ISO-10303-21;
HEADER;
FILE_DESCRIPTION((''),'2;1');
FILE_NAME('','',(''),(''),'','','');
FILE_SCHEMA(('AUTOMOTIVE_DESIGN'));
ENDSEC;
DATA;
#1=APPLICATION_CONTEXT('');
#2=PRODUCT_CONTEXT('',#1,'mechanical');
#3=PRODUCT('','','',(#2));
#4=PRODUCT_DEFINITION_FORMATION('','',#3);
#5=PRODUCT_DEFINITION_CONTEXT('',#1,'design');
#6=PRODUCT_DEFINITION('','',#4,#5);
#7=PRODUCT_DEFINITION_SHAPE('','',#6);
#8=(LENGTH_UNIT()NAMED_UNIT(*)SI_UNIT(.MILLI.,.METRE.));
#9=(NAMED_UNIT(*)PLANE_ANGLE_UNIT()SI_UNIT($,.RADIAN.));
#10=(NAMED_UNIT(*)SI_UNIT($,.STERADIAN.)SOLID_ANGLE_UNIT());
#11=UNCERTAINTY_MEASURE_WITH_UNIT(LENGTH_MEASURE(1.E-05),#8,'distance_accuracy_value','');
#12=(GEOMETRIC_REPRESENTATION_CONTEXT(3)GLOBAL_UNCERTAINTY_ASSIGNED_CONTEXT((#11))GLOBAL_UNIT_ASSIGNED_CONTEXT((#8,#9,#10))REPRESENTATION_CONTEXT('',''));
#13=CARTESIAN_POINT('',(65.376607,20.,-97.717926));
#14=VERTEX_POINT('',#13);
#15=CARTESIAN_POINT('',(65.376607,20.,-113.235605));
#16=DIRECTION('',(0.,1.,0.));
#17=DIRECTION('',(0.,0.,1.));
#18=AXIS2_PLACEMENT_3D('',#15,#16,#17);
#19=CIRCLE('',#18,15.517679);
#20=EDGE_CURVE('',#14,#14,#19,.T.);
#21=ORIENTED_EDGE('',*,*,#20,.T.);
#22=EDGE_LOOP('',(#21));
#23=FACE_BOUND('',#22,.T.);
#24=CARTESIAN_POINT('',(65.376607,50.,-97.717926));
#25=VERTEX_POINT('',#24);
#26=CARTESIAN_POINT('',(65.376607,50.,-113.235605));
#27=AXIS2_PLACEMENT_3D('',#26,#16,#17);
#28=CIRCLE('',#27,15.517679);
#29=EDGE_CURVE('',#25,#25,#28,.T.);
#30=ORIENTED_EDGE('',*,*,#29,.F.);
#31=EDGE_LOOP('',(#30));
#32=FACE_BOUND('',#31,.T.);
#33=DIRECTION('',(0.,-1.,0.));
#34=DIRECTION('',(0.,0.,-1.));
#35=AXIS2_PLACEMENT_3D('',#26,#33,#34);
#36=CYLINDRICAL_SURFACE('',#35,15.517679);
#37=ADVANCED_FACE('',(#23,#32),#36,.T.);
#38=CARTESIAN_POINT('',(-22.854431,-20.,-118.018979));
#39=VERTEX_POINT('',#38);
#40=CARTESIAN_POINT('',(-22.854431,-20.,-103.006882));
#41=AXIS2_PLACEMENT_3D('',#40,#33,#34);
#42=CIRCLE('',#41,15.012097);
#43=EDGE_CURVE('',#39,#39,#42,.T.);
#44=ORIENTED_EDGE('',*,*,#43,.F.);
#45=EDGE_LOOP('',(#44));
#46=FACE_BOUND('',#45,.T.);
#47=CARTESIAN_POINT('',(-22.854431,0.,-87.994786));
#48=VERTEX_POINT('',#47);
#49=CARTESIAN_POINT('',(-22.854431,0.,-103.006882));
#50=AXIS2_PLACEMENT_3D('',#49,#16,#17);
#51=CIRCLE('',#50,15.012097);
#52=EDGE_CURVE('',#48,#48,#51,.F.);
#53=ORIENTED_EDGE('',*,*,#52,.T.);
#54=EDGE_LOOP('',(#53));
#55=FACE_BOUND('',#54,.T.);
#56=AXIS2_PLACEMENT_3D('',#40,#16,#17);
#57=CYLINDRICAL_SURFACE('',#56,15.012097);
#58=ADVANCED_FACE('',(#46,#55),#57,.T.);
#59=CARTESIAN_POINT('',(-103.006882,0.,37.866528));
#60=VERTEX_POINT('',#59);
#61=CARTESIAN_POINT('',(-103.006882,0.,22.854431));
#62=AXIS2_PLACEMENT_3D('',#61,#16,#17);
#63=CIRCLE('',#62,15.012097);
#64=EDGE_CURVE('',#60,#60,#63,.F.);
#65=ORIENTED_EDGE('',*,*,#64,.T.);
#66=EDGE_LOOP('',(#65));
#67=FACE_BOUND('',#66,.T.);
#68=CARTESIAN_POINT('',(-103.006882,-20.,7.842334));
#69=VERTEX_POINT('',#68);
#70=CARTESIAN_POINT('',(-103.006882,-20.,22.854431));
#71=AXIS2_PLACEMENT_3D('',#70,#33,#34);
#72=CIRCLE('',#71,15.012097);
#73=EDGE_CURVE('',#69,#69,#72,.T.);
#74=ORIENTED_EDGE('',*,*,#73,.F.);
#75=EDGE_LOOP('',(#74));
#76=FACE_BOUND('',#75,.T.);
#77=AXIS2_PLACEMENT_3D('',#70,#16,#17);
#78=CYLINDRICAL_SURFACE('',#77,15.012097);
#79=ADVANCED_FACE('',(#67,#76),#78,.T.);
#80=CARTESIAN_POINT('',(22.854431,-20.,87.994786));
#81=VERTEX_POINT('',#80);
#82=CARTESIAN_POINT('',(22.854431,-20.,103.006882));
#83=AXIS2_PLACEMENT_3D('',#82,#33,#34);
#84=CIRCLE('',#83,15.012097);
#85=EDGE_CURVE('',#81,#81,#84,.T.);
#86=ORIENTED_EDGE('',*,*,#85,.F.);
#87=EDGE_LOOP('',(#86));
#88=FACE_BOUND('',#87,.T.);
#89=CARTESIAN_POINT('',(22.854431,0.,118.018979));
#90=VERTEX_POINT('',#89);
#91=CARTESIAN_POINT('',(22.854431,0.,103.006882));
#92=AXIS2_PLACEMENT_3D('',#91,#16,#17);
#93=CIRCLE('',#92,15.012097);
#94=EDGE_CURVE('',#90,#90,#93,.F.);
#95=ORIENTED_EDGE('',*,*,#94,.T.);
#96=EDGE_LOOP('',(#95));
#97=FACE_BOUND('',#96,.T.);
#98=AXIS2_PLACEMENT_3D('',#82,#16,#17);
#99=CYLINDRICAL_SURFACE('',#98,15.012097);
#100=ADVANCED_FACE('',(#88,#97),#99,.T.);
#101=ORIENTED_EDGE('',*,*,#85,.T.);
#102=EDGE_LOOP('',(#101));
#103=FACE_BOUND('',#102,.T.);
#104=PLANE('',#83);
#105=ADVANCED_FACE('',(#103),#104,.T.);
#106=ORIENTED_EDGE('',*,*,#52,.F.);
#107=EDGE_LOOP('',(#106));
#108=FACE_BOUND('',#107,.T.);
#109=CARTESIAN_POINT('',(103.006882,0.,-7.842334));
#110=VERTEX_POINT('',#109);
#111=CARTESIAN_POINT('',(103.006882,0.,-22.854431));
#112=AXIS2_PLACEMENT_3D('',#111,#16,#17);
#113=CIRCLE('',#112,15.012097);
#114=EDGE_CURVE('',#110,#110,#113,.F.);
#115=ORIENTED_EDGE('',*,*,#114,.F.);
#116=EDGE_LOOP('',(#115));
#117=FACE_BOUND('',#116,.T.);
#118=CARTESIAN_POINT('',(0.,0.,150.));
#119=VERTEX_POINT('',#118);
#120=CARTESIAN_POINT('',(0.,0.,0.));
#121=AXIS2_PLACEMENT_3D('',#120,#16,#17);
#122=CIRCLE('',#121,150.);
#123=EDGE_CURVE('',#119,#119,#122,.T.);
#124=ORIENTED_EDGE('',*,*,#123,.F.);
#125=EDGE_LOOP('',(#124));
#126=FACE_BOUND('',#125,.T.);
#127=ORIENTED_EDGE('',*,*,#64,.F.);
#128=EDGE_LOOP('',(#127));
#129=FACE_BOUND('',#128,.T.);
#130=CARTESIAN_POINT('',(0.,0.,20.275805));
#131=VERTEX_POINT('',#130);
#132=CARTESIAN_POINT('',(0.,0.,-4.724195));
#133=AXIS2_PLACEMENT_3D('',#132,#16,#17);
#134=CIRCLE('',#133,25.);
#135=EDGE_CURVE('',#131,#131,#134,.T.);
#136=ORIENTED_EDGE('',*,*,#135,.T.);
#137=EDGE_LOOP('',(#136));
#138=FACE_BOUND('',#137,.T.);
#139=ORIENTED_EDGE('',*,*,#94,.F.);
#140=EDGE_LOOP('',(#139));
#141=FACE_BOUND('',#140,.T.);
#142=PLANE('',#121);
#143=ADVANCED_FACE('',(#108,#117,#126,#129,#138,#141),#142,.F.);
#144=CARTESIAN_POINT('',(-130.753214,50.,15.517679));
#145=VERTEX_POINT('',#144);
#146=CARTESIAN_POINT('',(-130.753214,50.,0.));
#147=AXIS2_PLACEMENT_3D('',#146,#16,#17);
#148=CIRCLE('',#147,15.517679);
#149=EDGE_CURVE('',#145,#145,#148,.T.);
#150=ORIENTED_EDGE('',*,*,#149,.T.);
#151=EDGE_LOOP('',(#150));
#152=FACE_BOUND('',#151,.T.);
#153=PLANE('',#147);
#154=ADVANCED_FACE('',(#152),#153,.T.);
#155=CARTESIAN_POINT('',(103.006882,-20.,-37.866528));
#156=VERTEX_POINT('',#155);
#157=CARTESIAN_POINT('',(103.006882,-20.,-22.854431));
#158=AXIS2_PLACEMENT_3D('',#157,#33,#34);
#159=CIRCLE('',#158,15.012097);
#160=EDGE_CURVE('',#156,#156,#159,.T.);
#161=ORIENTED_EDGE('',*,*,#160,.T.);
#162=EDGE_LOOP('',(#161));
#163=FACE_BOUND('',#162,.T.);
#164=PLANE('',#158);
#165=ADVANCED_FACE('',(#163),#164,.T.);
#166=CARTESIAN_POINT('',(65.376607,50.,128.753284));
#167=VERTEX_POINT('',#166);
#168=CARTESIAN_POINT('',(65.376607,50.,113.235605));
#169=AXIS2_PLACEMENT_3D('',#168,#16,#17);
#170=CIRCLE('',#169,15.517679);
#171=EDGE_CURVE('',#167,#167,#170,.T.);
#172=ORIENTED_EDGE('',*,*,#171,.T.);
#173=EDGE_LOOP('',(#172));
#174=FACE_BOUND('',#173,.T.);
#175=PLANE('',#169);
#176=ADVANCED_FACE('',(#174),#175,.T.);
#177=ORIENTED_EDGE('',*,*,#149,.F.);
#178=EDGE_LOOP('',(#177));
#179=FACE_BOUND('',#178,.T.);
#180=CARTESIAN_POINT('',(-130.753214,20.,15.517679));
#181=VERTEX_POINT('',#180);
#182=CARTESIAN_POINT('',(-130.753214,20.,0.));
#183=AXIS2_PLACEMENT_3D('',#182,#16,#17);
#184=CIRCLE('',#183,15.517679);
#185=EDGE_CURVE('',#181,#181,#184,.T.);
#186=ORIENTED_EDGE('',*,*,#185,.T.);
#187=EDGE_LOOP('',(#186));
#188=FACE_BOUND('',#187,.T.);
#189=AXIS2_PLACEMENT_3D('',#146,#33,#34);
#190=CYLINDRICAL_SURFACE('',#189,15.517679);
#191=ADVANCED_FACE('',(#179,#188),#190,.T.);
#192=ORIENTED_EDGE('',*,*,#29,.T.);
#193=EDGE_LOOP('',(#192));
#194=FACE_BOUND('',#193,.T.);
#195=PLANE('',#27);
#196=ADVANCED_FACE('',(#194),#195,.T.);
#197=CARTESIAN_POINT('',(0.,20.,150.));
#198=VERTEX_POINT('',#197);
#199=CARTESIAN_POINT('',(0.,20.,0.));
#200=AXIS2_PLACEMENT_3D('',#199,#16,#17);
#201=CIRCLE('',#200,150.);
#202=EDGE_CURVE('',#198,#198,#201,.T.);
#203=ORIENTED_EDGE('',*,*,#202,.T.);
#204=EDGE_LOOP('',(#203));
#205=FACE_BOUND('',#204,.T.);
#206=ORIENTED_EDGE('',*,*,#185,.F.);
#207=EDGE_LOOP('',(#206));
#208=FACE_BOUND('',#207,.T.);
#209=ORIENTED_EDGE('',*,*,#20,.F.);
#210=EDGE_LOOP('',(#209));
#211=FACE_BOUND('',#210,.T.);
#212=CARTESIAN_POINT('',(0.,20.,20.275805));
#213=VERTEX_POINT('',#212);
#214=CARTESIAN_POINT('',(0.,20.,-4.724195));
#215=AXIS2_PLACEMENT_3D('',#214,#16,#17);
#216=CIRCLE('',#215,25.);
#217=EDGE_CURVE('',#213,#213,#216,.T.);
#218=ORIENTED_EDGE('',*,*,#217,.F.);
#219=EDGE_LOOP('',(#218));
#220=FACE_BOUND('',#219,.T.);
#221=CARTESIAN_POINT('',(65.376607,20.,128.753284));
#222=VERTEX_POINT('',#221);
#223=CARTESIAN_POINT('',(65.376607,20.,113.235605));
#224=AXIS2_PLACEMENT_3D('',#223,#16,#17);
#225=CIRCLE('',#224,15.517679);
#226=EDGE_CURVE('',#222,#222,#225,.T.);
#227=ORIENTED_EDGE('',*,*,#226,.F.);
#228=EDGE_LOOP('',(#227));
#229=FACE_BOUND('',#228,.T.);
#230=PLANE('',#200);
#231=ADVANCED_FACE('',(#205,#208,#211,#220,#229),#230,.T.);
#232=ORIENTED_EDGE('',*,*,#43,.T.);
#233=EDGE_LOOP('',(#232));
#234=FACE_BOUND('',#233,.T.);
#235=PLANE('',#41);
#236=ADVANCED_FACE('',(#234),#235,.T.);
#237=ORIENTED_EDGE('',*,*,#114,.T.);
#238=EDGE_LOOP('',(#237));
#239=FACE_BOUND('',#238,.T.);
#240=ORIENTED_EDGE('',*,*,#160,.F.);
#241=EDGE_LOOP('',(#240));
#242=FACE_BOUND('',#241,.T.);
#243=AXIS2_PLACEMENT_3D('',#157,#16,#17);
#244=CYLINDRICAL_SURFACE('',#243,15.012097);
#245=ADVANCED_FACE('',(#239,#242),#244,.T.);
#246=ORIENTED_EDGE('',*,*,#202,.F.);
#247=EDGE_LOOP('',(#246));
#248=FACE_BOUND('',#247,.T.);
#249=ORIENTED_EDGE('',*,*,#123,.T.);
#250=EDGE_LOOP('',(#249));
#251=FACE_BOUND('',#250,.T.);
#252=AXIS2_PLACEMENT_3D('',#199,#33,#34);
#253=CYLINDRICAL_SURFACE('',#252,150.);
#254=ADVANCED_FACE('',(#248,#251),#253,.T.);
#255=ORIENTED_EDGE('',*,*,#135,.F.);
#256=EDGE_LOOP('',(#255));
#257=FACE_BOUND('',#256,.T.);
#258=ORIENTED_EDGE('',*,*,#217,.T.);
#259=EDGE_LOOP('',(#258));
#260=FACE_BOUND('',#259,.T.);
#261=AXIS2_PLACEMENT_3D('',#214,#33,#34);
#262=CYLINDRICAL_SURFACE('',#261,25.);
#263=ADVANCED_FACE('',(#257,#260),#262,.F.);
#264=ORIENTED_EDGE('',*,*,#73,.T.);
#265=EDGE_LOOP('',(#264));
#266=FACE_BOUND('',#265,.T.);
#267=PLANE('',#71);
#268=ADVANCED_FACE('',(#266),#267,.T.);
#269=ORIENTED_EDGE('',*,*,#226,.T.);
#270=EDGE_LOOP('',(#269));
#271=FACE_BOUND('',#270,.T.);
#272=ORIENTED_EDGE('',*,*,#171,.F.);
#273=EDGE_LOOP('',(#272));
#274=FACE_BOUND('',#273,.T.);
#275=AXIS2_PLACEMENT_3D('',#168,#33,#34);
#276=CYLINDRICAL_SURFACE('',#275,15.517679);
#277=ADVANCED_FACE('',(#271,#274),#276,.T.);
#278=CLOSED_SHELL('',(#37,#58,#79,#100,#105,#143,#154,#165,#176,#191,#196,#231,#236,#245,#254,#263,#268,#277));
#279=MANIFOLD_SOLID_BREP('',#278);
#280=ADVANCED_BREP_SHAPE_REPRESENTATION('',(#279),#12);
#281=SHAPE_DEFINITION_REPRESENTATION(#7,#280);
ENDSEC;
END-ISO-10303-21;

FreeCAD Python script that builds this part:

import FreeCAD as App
import Part
import Sketcher

doc = App.newDocument("Part")
body = doc.addObject("PartDesign::Body", "Body")

sketch1 = body.newObject("Sketcher::SketchObject", "Sketch")
sketch1.AttachmentSupport = (doc.getObject("XZ_Plane"), [""])
sketch1.MapMode = "FlatFace"
sketch1.addGeometry([
    Part.Circle(App.Vector(0, 0, 0), App.Vector(0, 0, 1), 150),
    Part.Circle(App.Vector(0, -5, 0), App.Vector(0, 0, 1), 25),
], False)
sketch1.addConstraint([
    Sketcher.Constraint("Coincident", 0, 3, -1, 1),
    Sketcher.Constraint("PointOnObject", 1, 3, -2),
    Sketcher.Constraint("Diameter", 0, 300.0),
    Sketcher.Constraint("Diameter", 1, 50.0),
    Sketcher.Constraint("DistanceY", 1, 3, -1, 1, 4.724195),
])
pad1 = body.newObject("PartDesign::Pad", "Pad")
pad1.Profile = sketch1
pad1.Length = 20
pad1.Reversed = True

sketch2 = body.newObject("Sketcher::SketchObject", "Sketch001")
sketch2.AttachmentSupport = (doc.getObject("XZ_Plane"), [""])
sketch2.MapMode = "FlatFace"
sketch2.AttachmentOffset = App.Placement(App.Vector(0, 0, -20), App.Rotation())
sketch2.addGeometry([
    Part.Circle(App.Vector(-131, 0, 0), App.Vector(0, 0, 1), 16),
    Part.Circle(App.Vector(65, -113, 0), App.Vector(0, 0, 1), 16),
    Part.Circle(App.Vector(65, 113, 0), App.Vector(0, 0, 1), 16),
], False)
sketch2.addConstraint([
    Sketcher.Constraint("Equal", 0, 1),
    Sketcher.Constraint("Equal", 1, 2),
    Sketcher.Constraint("Symmetric", 1, 3, 2, 3, -1),
    Sketcher.Constraint("PointOnObject", 0, 3, -1),
    Sketcher.Constraint("Diameter", 0, 31.035358),
    Sketcher.Constraint("DistanceX", 0, 3, 1, 3, 196.129821),
    Sketcher.Constraint("DistanceY", 1, 3, 2, 3, 226.47121),
    Sketcher.Constraint("DistanceX", 0, 3, -1, 1, 130.753214),
])
pad2 = body.newObject("PartDesign::Pad", "Pad001")
pad2.Profile = sketch2
pad2.Length = 30
pad2.Reversed = True

sketch3 = body.newObject("Sketcher::SketchObject", "Sketch002")
sketch3.AttachmentSupport = (doc.getObject("XZ_Plane"), [""])
sketch3.MapMode = "FlatFace"
sketch3.addGeometry([
    Part.Circle(App.Vector(-103, 23, 0), App.Vector(0, 0, 1), 15),
    Part.Circle(App.Vector(23, 103, 0), App.Vector(0, 0, 1), 15),
    Part.Circle(App.Vector(103, -23, 0), App.Vector(0, 0, 1), 15),
    Part.Circle(App.Vector(-23, -103, 0), App.Vector(0, 0, 1), 15),
], False)
sketch3.addConstraint([
    Sketcher.Constraint("Equal", 0, 1),
    Sketcher.Constraint("Equal", 1, 2),
    Sketcher.Constraint("Equal", 2, 3),
    Sketcher.Constraint("Symmetric", 0, 3, 2, 3, -1, 1),
    Sketcher.Constraint("Symmetric", 1, 3, 3, 3, -1, 1),
    Sketcher.Constraint("Diameter", 0, 30.024193),
    Sketcher.Constraint("DistanceY", -1, 1, 0, 3, 22.854431),
    Sketcher.Constraint("DistanceX", -1, 1, 1, 3, 22.854431),
    Sketcher.Constraint("DistanceY", 0, 3, 1, 3, 80.152452),
    Sketcher.Constraint("DistanceX", 1, 3, 2, 3, 80.152452),
])
pad3 = body.newObject("PartDesign::Pad", "Pad002")
pad3.Profile = sketch3
pad3.Length = 20

doc.recompute()
